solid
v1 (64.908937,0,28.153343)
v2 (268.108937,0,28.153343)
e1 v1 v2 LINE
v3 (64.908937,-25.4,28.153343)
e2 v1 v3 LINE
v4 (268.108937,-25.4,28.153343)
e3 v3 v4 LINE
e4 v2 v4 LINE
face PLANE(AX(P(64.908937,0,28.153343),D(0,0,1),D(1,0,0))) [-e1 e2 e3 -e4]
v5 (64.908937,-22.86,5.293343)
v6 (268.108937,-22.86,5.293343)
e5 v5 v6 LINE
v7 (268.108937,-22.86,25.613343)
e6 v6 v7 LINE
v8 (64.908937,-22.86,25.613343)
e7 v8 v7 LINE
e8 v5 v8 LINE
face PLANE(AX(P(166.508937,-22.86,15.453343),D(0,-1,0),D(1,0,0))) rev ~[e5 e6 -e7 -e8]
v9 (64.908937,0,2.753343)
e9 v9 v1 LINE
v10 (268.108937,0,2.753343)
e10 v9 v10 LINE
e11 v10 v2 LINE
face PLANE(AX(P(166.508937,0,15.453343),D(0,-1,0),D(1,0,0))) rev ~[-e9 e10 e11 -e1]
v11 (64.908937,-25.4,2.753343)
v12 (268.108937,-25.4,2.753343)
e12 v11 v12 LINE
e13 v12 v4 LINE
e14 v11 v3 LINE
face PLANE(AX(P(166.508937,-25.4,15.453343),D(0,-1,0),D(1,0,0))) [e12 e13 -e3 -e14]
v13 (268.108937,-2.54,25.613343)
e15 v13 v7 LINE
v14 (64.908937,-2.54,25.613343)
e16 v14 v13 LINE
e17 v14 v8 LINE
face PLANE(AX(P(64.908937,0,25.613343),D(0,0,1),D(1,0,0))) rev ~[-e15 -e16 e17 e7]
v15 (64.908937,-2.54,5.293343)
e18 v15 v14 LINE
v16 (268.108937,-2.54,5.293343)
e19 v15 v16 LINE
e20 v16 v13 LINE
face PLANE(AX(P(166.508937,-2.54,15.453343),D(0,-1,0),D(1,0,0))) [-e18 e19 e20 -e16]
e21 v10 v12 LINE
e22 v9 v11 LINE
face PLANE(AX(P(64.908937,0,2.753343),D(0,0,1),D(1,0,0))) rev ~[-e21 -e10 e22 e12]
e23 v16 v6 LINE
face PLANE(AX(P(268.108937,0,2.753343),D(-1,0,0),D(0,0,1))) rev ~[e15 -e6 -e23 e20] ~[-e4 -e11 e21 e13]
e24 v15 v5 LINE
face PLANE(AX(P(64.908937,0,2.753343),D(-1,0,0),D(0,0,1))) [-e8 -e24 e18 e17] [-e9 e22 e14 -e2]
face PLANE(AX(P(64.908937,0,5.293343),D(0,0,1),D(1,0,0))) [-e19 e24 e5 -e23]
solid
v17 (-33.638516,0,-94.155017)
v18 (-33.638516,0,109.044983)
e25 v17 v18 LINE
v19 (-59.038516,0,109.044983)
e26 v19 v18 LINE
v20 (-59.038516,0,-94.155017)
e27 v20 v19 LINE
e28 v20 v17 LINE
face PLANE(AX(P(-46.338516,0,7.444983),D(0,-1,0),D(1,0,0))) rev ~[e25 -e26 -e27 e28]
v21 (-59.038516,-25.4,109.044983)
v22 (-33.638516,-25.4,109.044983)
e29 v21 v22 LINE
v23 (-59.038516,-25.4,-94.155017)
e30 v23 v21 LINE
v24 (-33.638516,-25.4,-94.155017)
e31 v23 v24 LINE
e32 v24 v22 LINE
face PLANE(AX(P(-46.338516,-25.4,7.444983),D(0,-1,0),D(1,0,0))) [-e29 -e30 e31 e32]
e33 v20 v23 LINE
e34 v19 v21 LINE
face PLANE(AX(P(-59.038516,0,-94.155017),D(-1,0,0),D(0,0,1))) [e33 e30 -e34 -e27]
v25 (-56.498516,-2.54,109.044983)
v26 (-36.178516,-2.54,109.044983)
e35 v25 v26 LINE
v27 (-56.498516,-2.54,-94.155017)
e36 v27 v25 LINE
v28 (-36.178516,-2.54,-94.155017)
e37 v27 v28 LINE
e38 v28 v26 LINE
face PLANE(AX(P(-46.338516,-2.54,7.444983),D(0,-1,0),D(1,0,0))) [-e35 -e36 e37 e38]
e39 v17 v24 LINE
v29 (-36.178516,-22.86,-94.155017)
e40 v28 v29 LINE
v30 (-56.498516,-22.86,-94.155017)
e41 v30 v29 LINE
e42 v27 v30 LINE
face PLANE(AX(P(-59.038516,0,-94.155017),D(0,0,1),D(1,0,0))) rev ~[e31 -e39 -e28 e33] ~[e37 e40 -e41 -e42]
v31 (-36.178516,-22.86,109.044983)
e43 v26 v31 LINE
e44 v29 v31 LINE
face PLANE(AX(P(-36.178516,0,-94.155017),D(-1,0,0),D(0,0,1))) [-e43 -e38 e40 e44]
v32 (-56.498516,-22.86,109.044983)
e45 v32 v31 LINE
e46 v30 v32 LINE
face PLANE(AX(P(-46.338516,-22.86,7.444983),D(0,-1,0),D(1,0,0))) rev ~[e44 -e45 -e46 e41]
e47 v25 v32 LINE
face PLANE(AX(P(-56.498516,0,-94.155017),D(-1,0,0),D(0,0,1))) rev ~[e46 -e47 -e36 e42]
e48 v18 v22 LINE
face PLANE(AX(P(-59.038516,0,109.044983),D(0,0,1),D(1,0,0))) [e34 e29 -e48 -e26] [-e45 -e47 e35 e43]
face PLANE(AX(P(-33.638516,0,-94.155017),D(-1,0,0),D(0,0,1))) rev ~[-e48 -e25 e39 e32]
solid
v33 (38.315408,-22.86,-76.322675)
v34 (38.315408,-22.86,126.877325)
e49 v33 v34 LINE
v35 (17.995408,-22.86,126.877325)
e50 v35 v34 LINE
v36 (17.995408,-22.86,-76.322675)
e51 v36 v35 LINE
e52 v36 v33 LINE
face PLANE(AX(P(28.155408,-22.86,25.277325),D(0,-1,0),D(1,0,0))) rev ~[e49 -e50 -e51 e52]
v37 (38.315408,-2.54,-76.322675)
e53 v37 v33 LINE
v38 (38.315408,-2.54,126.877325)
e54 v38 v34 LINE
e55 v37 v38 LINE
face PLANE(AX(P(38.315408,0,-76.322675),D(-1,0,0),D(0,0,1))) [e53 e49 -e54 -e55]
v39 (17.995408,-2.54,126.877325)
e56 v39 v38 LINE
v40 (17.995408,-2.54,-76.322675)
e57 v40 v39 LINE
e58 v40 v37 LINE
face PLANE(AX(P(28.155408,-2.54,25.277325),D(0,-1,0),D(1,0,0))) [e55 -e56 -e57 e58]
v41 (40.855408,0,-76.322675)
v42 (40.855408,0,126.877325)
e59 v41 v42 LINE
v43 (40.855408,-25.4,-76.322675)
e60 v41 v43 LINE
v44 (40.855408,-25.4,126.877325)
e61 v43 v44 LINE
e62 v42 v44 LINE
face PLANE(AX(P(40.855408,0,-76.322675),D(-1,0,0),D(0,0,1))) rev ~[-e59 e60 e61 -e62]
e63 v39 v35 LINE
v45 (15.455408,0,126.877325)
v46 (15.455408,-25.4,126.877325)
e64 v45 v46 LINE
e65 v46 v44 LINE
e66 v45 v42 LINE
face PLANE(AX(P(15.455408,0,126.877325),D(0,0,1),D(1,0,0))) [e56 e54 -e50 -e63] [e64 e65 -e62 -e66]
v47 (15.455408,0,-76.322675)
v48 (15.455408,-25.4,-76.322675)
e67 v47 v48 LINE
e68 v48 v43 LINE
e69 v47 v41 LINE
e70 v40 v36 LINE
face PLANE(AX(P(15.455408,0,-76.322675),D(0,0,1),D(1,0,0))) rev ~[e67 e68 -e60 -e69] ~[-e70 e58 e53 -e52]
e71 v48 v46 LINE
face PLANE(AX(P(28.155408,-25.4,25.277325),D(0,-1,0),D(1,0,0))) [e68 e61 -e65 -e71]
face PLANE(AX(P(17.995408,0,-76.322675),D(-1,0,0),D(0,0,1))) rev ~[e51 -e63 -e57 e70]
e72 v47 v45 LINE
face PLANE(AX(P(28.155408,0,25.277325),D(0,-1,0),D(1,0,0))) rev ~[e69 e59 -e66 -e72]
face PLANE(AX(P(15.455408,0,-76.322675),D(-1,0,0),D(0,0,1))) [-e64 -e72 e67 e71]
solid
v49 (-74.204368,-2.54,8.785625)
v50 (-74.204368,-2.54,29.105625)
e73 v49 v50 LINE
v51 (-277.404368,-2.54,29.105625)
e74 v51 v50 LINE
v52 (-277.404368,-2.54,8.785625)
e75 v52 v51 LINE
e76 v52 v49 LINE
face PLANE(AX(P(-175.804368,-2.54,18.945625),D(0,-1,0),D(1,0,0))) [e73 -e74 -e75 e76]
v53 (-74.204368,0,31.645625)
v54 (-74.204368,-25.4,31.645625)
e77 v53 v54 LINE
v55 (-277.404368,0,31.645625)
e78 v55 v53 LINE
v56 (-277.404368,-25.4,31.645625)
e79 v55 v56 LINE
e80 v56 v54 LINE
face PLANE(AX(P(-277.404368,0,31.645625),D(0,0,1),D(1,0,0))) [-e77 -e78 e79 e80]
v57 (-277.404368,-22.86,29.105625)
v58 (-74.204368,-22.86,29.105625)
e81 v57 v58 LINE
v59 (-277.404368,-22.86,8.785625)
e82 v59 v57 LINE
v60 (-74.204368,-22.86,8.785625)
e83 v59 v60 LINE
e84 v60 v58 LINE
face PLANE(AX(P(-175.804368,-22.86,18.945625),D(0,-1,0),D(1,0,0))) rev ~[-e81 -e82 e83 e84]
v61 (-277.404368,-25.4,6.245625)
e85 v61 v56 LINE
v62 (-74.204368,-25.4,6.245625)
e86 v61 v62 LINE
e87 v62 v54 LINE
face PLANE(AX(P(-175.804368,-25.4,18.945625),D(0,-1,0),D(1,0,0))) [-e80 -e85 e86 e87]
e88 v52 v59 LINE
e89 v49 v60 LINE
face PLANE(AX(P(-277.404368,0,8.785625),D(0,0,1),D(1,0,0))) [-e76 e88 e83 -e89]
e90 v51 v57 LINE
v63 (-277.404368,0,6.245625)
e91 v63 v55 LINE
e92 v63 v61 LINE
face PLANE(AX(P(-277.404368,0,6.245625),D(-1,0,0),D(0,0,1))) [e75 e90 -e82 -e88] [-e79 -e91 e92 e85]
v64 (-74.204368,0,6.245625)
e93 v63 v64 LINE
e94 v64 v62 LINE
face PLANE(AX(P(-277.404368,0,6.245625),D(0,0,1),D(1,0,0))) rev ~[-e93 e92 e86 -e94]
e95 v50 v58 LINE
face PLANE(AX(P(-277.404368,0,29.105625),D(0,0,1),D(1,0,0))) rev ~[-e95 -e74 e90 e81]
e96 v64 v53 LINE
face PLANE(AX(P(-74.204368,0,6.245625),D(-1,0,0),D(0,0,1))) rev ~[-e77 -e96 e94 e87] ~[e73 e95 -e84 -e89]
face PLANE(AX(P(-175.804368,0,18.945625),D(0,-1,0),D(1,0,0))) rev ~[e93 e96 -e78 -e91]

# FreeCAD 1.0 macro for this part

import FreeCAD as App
import Part
import Sketcher

V = App.Vector
Q = App.Units.Quantity


def faces_at(feature, points):
    """Names of the faces that lie closest to the given points."""
    faces = feature.Shape.Faces
    near = lambda p: min(range(len(faces)), key=lambda i: faces[i].distToShape(Part.Vertex(*p))[0])
    return sorted({f"Face{near(p) + 1}" for p in points})


def add_polygon(sketch, points):
    """Adds a closed chain of lines whose ends are joined by coincident constraints."""
    first, n = sketch.GeometryCount, len(points)
    for a, b in zip(points, points[1:] + points[:1]):
        sketch.addGeometry(Part.LineSegment(App.Vector(*a, 0), App.Vector(*b, 0)), False)
    for i in range(n):
        sketch.addConstraint(Sketcher.Constraint("Coincident", first + i, 2, first + (i + 1) % n, 1))

doc = App.newDocument("Part")
body = doc.addObject("PartDesign::Body", "Body")

sketch1 = body.newObject("Sketcher::SketchObject", "Sketch")
sketch1.AttachmentSupport = (doc.getObject("XZ_Plane"), [""])
sketch1.MapMode = "FlatFace"
add_polygon(sketch1, [(-59, 109), (-59, -94), (-34, -94), (-34, 109)])
sketch1.addConstraint([
    Sketcher.Constraint("Vertical", 0),
    Sketcher.Constraint("Horizontal", 1),
    Sketcher.Constraint("Vertical", 2),
    Sketcher.Constraint("Horizontal", 3),
    Sketcher.Constraint("DistanceX", 1, 1, 1, 2, Q("1 in")),
    Sketcher.Constraint("DistanceY", 0, 2, 0, 1, Q("8 in")),
    Sketcher.Constraint("DistanceX", 0, 2, -1, 1, 59.038516),
    Sketcher.Constraint("DistanceY", 0, 2, -1, 1, 94.155017),
])
pad1 = body.newObject("PartDesign::Pad", "Pad")
pad1.Profile = sketch1
pad1.Length = Q("1 in")
doc.recompute()

thickness = body.newObject("PartDesign::Thickness", "Thickness")
thickness.Base = (pad1, faces_at(pad1, [(-46.339, -12.7, 109.045), (-46.339, -12.7, -94.155)]))
thickness.Value = Q("0.1 in")
thickness.Reversed = True
thickness.Join = "Arc"
body2 = doc.addObject("PartDesign::Body", "Body001")

sketch2 = body2.newObject("Sketcher::SketchObject", "Sketch001")
sketch2.AttachmentSupport = (doc.getObject("XZ_Plane001"), [""])
sketch2.MapMode = "FlatFace"
add_polygon(sketch2, [(15, 127), (15, -76), (41, -76), (41, 127)])
sketch2.addConstraint([
    Sketcher.Constraint("Vertical", 0),
    Sketcher.Constraint("Horizontal", 1),
    Sketcher.Constraint("Vertical", 2),
    Sketcher.Constraint("Horizontal", 3),
    Sketcher.Constraint("DistanceX", 1, 1, 1, 2, Q("1 in")),
    Sketcher.Constraint("DistanceY", 0, 2, 0, 1, Q("8 in")),
    Sketcher.Constraint("DistanceX", -1, 1, 0, 2, 15.455408),
    Sketcher.Constraint("DistanceY", 0, 2, -1, 1, 76.322675),
])
pad2 = body2.newObject("PartDesign::Pad", "Pad001")
pad2.Profile = sketch2
pad2.Length = Q("1 in")
doc.recompute()

thickness2 = body2.newObject("PartDesign::Thickness", "Thickness001")
thickness2.Base = (pad2, faces_at(pad2, [(28.155, -12.7, 126.877), (28.155, -12.7, -76.323)]))
thickness2.Value = Q("0.1 in")
thickness2.Reversed = True
thickness2.Join = "Arc"
body3 = doc.addObject("PartDesign::Body", "Body002")

sketch3 = body3.newObject("Sketcher::SketchObject", "Sketch002")
sketch3.AttachmentSupport = (doc.getObject("XZ_Plane002"), [""])
sketch3.MapMode = "FlatFace"
add_polygon(sketch3, [(65, 28), (65, 3), (268, 3), (268, 28)])
sketch3.addConstraint([
    Sketcher.Constraint("Vertical", 0),
    Sketcher.Constraint("Horizontal", 1),
    Sketcher.Constraint("Vertical", 2),
    Sketcher.Constraint("Horizontal", 3),
    Sketcher.Constraint("DistanceX", 1, 1, 1, 2, Q("8 in")),
    Sketcher.Constraint("DistanceY", 0, 2, 0, 1, Q("1 in")),
    Sketcher.Constraint("DistanceX", -1, 1, 0, 2, 64.908937),
    Sketcher.Constraint("DistanceY", -1, 1, 0, 2, 2.753343),
])
pad3 = body3.newObject("PartDesign::Pad", "Pad002")
pad3.Profile = sketch3
pad3.Length = Q("1 in")
doc.recompute()

thickness3 = body3.newObject("PartDesign::Thickness", "Thickness002")
thickness3.Base = (pad3, faces_at(pad3, [(268.109, -12.7, 15.453), (64.909, -12.7, 15.453)]))
thickness3.Value = Q("0.1 in")
thickness3.Reversed = True
thickness3.Join = "Arc"
body4 = doc.addObject("PartDesign::Body", "Body003")

sketch4 = body4.newObject("Sketcher::SketchObject", "Sketch003")
sketch4.AttachmentSupport = (doc.getObject("XZ_Plane003"), [""])
sketch4.MapMode = "FlatFace"
add_polygon(sketch4, [(-277, 32), (-277, 6), (-74, 6), (-74, 32)])
sketch4.addConstraint([
    Sketcher.Constraint("Vertical", 0),
    Sketcher.Constraint("Horizontal", 1),
    Sketcher.Constraint("Vertical", 2),
    Sketcher.Constraint("Horizontal", 3),
    Sketcher.Constraint("DistanceX", 1, 1, 1, 2, Q("8 in")),
    Sketcher.Constraint("DistanceY", 0, 2, 0, 1, Q("1 in")),
    Sketcher.Constraint("DistanceX", 0, 2, -1, 1, 277.404368),
    Sketcher.Constraint("DistanceY", -1, 1, 0, 2, 6.245625),
])
pad4 = body4.newObject("PartDesign::Pad", "Pad003")
pad4.Profile = sketch4
pad4.Length = Q("1 in")
doc.recompute()

thickness4 = body4.newObject("PartDesign::Thickness", "Thickness003")
thickness4.Base = (pad4, faces_at(pad4, [(-74.204, -12.7, 18.946), (-277.404, -12.7, 18.946)]))
thickness4.Value = Q("0.1 in")
thickness4.Reversed = True
thickness4.Join = "Arc"

doc.recompute()
